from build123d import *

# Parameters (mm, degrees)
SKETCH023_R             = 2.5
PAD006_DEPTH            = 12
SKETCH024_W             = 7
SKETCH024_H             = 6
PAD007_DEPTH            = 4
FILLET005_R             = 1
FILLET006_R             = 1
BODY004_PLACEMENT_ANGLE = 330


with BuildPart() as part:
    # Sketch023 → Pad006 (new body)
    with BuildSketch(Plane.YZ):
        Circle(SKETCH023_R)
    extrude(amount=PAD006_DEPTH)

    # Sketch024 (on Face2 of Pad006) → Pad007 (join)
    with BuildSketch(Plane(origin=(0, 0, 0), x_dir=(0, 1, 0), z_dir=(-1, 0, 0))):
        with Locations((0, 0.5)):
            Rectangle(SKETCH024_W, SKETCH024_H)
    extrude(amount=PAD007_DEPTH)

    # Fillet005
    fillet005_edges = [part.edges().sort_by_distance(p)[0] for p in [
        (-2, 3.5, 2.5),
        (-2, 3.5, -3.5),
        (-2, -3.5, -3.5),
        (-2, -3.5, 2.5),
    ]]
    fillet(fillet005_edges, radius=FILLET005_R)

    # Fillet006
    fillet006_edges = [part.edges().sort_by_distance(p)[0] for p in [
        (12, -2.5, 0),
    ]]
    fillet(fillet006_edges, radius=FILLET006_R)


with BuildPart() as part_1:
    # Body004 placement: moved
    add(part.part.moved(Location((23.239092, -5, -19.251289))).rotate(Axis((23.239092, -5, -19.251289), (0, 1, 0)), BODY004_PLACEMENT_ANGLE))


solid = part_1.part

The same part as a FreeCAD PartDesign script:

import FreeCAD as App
import Part
import Sketcher
from FreeCAD import Vector
Q = App.Units.Quantity


def edges_at(feature, points):
    """Names of the edges that pass closest to the given points."""
    edges = feature.Shape.Edges
    near = lambda p: min(range(len(edges)), key=lambda i: edges[i].distToShape(Part.Vertex(*p))[0])
    return sorted({f"Edge{near(p) + 1}" for p in points})


def add_polygon(sketch, points):
    """Adds a closed chain of lines whose ends are joined by coincident constraints."""
    first, n = sketch.GeometryCount, len(points)
    for a, b in zip(points, points[1:] + points[:1]):
        sketch.addGeometry(Part.LineSegment(App.Vector(*a, 0), App.Vector(*b, 0)), False)
    for i in range(n):
        sketch.addConstraint(Sketcher.Constraint("Coincident", first + i, 2, first + (i + 1) % n, 1))

doc = App.newDocument("Part")
params = doc.addObject("Spreadsheet::Sheet", "Params")
for row, (alias, value) in enumerate([
    ("sketch1_diameter", "5 mm"),
    ("pad1_length", "12 mm"),
    ("sketch2_width", "7 mm"),
    ("sketch2_height", "6 mm"),
    ("pad2_length", "4 mm"),
    ("fillet_radius", "1 mm"),
    ("fillet2_radius", "1 mm"),
], start=1):
    params.set(f"A{row}", alias)
    params.set(f"B{row}", "=" + value)
    params.setAlias(f"B{row}", alias)

body = doc.addObject("PartDesign::Body", "Body")

# Sketch on YZ plane
sketch1 = body.newObject("Sketcher::SketchObject", "Sketch")
sketch1.AttachmentSupport = (doc.getObject("YZ_Plane"), [""])
sketch1.MapMode = "FlatFace"
sketch1.addGeometry(Part.Circle(Vector(0, 0, 0), Vector(0, 0, 1), 2.5), False)
sketch1.addConstraint([
    Sketcher.Constraint("Coincident", 0, 3, -1, 1),
    Sketcher.Constraint("Diameter", 0, Q("5 mm")),
])
sketch1.setExpression("Constraints[1]", "Params.sketch1_diameter")
pad1 = body.newObject("PartDesign::Pad", "Pad")
pad1.Profile = sketch1
pad1.setExpression("Length", "Params.pad1_length")

# Sketch on YZ plane
sketch2 = body.newObject("Sketcher::SketchObject", "Sketch001")
sketch2.AttachmentSupport = (doc.getObject("YZ_Plane"), [""])
sketch2.MapMode = "FlatFace"
add_polygon(sketch2, [(-4, -4), (-4, 2), (4, 2), (4, -4)])  # lines 0-3
sketch2.addConstraint([
    Sketcher.Constraint("Vertical", 0),
    Sketcher.Constraint("Horizontal", 1),
    Sketcher.Constraint("Vertical", 2),
    Sketcher.Constraint("Horizontal", 3),
    Sketcher.Constraint("DistanceX", 1, 1, 1, 2, Q("7 mm")),
    Sketcher.Constraint("DistanceY", 0, 1, 0, 2, Q("6 mm")),
    Sketcher.Constraint("DistanceX", 0, 2, -1, 1, Q("3.5 mm")),
    Sketcher.Constraint("DistanceY", -1, 1, 0, 2, Q("2.5 mm")),
])
sketch2.setExpression("Constraints[8]", "Params.sketch2_width")
sketch2.setExpression("Constraints[9]", "Params.sketch2_height")
pad2 = body.newObject("PartDesign::Pad", "Pad001")
pad2.Profile = sketch2
pad2.setExpression("Length", "Params.pad2_length")
pad2.Reversed = True
doc.recompute()

fillet = body.newObject("PartDesign::Fillet", "Fillet")
fillet.Base = (pad2, edges_at(pad2, [
    (-2, 3.5, 2.5),
    (-2, 3.5, -3.5),
    (-2, -3.5, -3.5),
    (-2, -3.5, 2.5),
]))
fillet.setExpression("Radius", "Params.fillet_radius")
doc.recompute()

fillet2 = body.newObject("PartDesign::Fillet", "Fillet001")
fillet2.Base = (fillet, edges_at(fillet, [(12, -2.5, 0)]))
fillet2.setExpression("Radius", "Params.fillet2_radius")
body2 = doc.addObject("PartDesign::Body", "Body001")
doc.recompute()

body.Placement = App.Placement(Vector(23.239092, -5, -19.251289), App.Rotation(Vector(0, 1, 0), 330))
boolean = body2.newObject("PartDesign::Boolean", "Boolean")
boolean.Type = "Fuse"
boolean.addObjects([body])

doc.recompute()
